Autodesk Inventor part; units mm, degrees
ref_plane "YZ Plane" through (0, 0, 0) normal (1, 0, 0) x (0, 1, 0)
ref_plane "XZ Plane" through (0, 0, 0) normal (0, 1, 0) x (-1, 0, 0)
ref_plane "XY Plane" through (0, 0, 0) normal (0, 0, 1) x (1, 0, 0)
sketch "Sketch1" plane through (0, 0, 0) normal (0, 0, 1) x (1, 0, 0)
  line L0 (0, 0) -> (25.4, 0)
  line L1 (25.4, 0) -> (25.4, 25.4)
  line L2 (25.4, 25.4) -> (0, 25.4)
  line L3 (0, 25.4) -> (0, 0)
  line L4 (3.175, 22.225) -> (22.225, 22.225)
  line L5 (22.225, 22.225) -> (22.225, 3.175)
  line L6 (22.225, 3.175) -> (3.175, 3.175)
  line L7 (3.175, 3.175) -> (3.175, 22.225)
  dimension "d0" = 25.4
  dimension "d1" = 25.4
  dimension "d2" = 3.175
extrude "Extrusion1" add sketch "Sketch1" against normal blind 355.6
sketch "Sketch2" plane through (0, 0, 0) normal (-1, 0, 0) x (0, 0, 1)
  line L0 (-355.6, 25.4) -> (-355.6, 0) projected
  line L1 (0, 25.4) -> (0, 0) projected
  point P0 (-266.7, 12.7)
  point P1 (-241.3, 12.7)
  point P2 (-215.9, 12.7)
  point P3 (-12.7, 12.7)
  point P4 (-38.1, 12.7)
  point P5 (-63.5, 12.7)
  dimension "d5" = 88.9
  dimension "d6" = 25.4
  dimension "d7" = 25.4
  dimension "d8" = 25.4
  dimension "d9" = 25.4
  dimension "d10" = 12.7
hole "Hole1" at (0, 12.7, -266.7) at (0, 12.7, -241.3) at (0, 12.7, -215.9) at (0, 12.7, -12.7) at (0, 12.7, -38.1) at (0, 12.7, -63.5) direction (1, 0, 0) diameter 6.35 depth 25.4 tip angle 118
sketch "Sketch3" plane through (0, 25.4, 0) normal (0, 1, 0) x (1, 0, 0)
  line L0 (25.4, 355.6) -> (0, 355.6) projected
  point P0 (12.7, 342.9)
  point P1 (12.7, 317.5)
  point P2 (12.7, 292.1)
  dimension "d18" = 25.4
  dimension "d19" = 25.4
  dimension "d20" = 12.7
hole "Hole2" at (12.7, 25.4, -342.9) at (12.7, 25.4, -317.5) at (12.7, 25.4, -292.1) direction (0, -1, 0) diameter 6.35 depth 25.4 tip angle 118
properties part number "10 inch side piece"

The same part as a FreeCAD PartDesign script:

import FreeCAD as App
import Part
import Sketcher
from FreeCAD import Vector
Q = App.Units.Quantity


def add_polygon(sketch, points):
    """Adds a closed chain of lines whose ends are joined by coincident constraints."""
    first, n = sketch.GeometryCount, len(points)
    for a, b in zip(points, points[1:] + points[:1]):
        sketch.addGeometry(Part.LineSegment(App.Vector(*a, 0), App.Vector(*b, 0)), False)
    for i in range(n):
        sketch.addConstraint(Sketcher.Constraint("Coincident", first + i, 2, first + (i + 1) % n, 1))

doc = App.newDocument("Part")
params = doc.addObject("Spreadsheet::Sheet", "Params")
for row, (alias, value) in enumerate([
    ("sketch1_width", "1 in"),
    ("pad1_length", "14 in"),
    ("sketch2_diameter", "0.25 in"),
    ("hole_diameter", "0.25 in"),
    ("hole_depth", "1 in"),
    ("sketch3_diameter", "0.25 in"),
    ("hole2_diameter", "0.25 in"),
    ("hole2_depth", "1 in"),
], start=1):
    params.set(f"A{row}", alias)
    params.set(f"B{row}", "=" + value)
    params.setAlias(f"B{row}", alias)

body = doc.addObject("PartDesign::Body", "Body")

# Sketch on XY plane
sketch1 = body.newObject("Sketcher::SketchObject", "Sketch")
sketch1.AttachmentSupport = (doc.getObject("XY_Plane"), [""])
sketch1.MapMode = "FlatFace"
add_polygon(sketch1, [(0, 25), (0, 0), (25, 0), (25, 25)])  # lines 0-3
add_polygon(sketch1, [(3, 3), (3, 22), (22, 22), (22, 3)])  # lines 4-7
sketch1.addConstraint([
    Sketcher.Constraint("Vertical", 0),
    Sketcher.Constraint("Horizontal", 1),
    Sketcher.Constraint("Vertical", 2),
    Sketcher.Constraint("Horizontal", 3),
    Sketcher.Constraint("Vertical", 4),
    Sketcher.Constraint("Horizontal", 5),
    Sketcher.Constraint("Vertical", 6),
    Sketcher.Constraint("Horizontal", 7),
    Sketcher.Constraint("Coincident", 0, 2, -1, 1),
    Sketcher.Constraint("Equal", 3, 0),
    Sketcher.Constraint("Equal", 7, 4),
    Sketcher.Constraint("DistanceX", 1, 1, 1, 2, Q("1 in")),
    Sketcher.Constraint("DistanceX", -1, 1, 4, 2, Q("0.125 in")),
    Sketcher.Constraint("DistanceY", -1, 1, 6, 2, Q("0.125 in")),
    Sketcher.Constraint("DistanceY", 4, 2, 3, 2, Q("0.125 in")),
])
sketch1.setExpression("Constraints[19]", "Params.sketch1_width")
pad1 = body.newObject("PartDesign::Pad", "Pad")
pad1.Profile = sketch1
pad1.setExpression("Length", "Params.pad1_length")
pad1.Reversed = True

# Sketch on YZ plane
sketch2 = body.newObject("Sketcher::SketchObject", "Sketch001")
sketch2.AttachmentSupport = (doc.getObject("YZ_Plane"), [""])
sketch2.MapMode = "FlatFace"
sketch2.addGeometry([
    Part.Circle(Vector(12.7, -266.7, 0), Vector(0, 0, 1), 3.2),  # 0
    Part.Circle(Vector(12.7, -241.3, 0), Vector(0, 0, 1), 3.2),  # 1
    Part.Circle(Vector(12.7, -215.9, 0), Vector(0, 0, 1), 3.2),  # 2
    Part.Circle(Vector(12.7, -12.7, 0), Vector(0, 0, 1), 3.2),  # 3
    Part.Circle(Vector(12.7, -38.1, 0), Vector(0, 0, 1), 3.2),  # 4
    Part.Circle(Vector(12.7, -63.5, 0), Vector(0, 0, 1), 3.2),  # 5
], False)
sketch2.addConstraint([
    Sketcher.Constraint("Equal", 0, 1),
    Sketcher.Constraint("Equal", 1, 2),
    Sketcher.Constraint("Equal", 2, 3),
    Sketcher.Constraint("Equal", 3, 4),
    Sketcher.Constraint("Equal", 4, 5),
    Sketcher.Constraint("Vertical", 0, 3, 1, 3),
    Sketcher.Constraint("Vertical", 1, 3, 2, 3),
    Sketcher.Constraint("Vertical", 2, 3, 3, 3),
    Sketcher.Constraint("Vertical", 3, 3, 4, 3),
    Sketcher.Constraint("Vertical", 4, 3, 5, 3),
    Sketcher.Constraint("Diameter", 0, Q("0.25 in")),
    Sketcher.Constraint("DistanceY", 0, 3, 1, 3, Q("1 in")),
    Sketcher.Constraint("DistanceY", 1, 3, 2, 3, Q("1 in")),
    Sketcher.Constraint("DistanceY", 2, 3, 3, 3, Q("8 in")),
    Sketcher.Constraint("DistanceY", 4, 3, 3, 3, Q("1 in")),
    Sketcher.Constraint("DistanceY", 5, 3, 4, 3, Q("1 in")),
    Sketcher.Constraint("DistanceX", -1, 1, 0, 3, Q("0.5 in")),
    Sketcher.Constraint("DistanceY", 0, 3, -1, 1, Q("10.5 in")),
])
sketch2.setExpression("Constraints[10]", "Params.sketch2_diameter")
doc.recompute()
hole = body.newObject("PartDesign::Hole", "Hole")
hole.Profile = sketch2
hole.ThreadType = "None"
hole.setExpression("Diameter", "Params.hole_diameter")
hole.DepthType = "Dimension"
hole.setExpression("Depth", "Params.hole_depth")
hole.DrillPoint = "Angled"
hole.DrillPointAngle = 118
hole.Reversed = True

# Sketch on XZ plane
sketch3 = body.newObject("Sketcher::SketchObject", "Sketch002")
sketch3.AttachmentSupport = (doc.getObject("XZ_Plane"), [""])
sketch3.MapMode = "FlatFace"
sketch3.AttachmentOffset = App.Placement(Vector(0, 0, -1 * 25.4), App.Rotation())
sketch3.addGeometry([
    Part.Circle(Vector(12.7, -342.9, 0), Vector(0, 0, 1), 3.2),
    Part.Circle(Vector(12.7, -317.5, 0), Vector(0, 0, 1), 3.2),
    Part.Circle(Vector(12.7, -292.1, 0), Vector(0, 0, 1), 3.2),
], False)
sketch3.addConstraint([
    Sketcher.Constraint("Equal", 0, 1),
    Sketcher.Constraint("Equal", 1, 2),
    Sketcher.Constraint("Vertical", 0, 3, 1, 3),
    Sketcher.Constraint("Vertical", 1, 3, 2, 3),
    Sketcher.Constraint("Diameter", 0, Q("0.25 in")),
    Sketcher.Constraint("DistanceY", 0, 3, 1, 3, Q("1 in")),
    Sketcher.Constraint("DistanceY", 1, 3, 2, 3, Q("1 in")),
    Sketcher.Constraint("DistanceX", -1, 1, 0, 3, Q("0.5 in")),
    Sketcher.Constraint("DistanceY", 0, 3, -1, 1, Q("13.5 in")),
])
sketch3.setExpression("Constraints[4]", "Params.sketch3_diameter")
doc.recompute()
hole2 = body.newObject("PartDesign::Hole", "Hole001")
hole2.Profile = sketch3
hole2.ThreadType = "None"
hole2.setExpression("Diameter", "Params.hole2_diameter")
hole2.DepthType = "Dimension"
hole2.setExpression("Depth", "Params.hole2_depth")
hole2.DrillPoint = "Angled"
hole2.DrillPointAngle = 118
hole2.Reversed = True

doc.recompute()
